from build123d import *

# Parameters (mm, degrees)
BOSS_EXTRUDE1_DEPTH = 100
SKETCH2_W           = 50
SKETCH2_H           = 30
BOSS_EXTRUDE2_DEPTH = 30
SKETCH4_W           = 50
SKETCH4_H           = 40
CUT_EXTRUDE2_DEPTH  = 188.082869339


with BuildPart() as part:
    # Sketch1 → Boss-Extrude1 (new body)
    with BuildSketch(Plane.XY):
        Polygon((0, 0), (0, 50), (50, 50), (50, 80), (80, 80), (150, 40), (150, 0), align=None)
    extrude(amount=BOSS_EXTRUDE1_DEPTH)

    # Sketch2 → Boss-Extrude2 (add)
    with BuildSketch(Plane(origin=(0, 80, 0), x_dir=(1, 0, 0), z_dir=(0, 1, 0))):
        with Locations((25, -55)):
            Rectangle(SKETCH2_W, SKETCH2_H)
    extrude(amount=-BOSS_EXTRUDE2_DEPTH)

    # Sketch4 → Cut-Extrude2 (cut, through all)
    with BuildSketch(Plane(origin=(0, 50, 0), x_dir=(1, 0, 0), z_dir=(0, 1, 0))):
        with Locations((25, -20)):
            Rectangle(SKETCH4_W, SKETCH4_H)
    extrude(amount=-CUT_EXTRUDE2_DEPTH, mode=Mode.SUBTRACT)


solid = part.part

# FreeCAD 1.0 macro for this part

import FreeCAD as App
import Part
import Sketcher

doc = App.newDocument("Part")
body = doc.addObject("PartDesign::Body", "Body")

# Sketch on XY plane
sketch1 = doc.addObject("Sketcher::SketchObject", "Sketch")
body.addObject(sketch1)
sketch1.AttachmentSupport = (doc.XY_Plane, [""])
sketch1.MapMode = "FlatFace"
sketch1.addGeometry([
    Part.LineSegment(App.Vector(0, 50, 0), App.Vector(0, 0, 0)),  # 0
    Part.LineSegment(App.Vector(0, 0, 0), App.Vector(150, 0, 0)),  # 1
    Part.LineSegment(App.Vector(150, 0, 0), App.Vector(150, 40, 0)),  # 2
    Part.LineSegment(App.Vector(150, 40, 0), App.Vector(80, 80, 0)),  # 3
    Part.LineSegment(App.Vector(80, 80, 0), App.Vector(50, 80, 0)),  # 4
    Part.LineSegment(App.Vector(50, 80, 0), App.Vector(50, 50, 0)),  # 5
    Part.LineSegment(App.Vector(50, 50, 0), App.Vector(0, 50, 0)),  # 6
], False)
sketch1.addConstraint([
    Sketcher.Constraint("Coincident", 0, 2, 1, 1),
    Sketcher.Constraint("Coincident", 1, 2, 2, 1),
    Sketcher.Constraint("Coincident", 2, 2, 3, 1),
    Sketcher.Constraint("Coincident", 3, 2, 4, 1),
    Sketcher.Constraint("Coincident", 4, 2, 5, 1),
    Sketcher.Constraint("Coincident", 5, 2, 6, 1),
    Sketcher.Constraint("Coincident", 6, 2, 0, 1),
    Sketcher.Constraint("Vertical", 0),
    Sketcher.Constraint("Horizontal", 1),
    Sketcher.Constraint("Vertical", 2),
    Sketcher.Constraint("Horizontal", 4),
    Sketcher.Constraint("Vertical", 5),
    Sketcher.Constraint("Horizontal", 6),
    Sketcher.Constraint("Coincident", 0, 2, -1, 1),
    Sketcher.Constraint("Equal", 6, 0),
    Sketcher.Constraint("Equal", 4, 5),
    Sketcher.Constraint("DistanceX", 1, 1, 1, 2, 150.0),
    Sketcher.Constraint("DistanceX", 4, 2, 4, 1, 30.0),
    Sketcher.Constraint("DistanceX", 6, 2, 6, 1, 50.0),
    Sketcher.Constraint("DistanceY", 2, 1, 2, 2, 40.0),
])
pad1 = doc.addObject("PartDesign::Pad", "Pad")
body.addObject(pad1)
pad1.Profile = sketch1
pad1.Length = 100

# Sketch on XZ plane
sketch2 = doc.addObject("Sketcher::SketchObject", "Sketch001")
body.addObject(sketch2)
sketch2.AttachmentSupport = (doc.XZ_Plane, [""])
sketch2.MapMode = "FlatFace"
sketch2.AttachmentOffset = App.Placement(App.Vector(0, 0, -80), App.Rotation())
sketch2.addGeometry([
    Part.LineSegment(App.Vector(0, 40, 0), App.Vector(0, 70, 0)),
    Part.LineSegment(App.Vector(0, 70, 0), App.Vector(50, 70, 0)),
    Part.LineSegment(App.Vector(50, 70, 0), App.Vector(50, 40, 0)),
    Part.LineSegment(App.Vector(50, 40, 0), App.Vector(0, 40, 0)),
], False)
sketch2.addConstraint([
    Sketcher.Constraint("Coincident", 0, 2, 1, 1),
    Sketcher.Constraint("Coincident", 1, 2, 2, 1),
    Sketcher.Constraint("Coincident", 2, 2, 3, 1),
    Sketcher.Constraint("Coincident", 3, 2, 0, 1),
    Sketcher.Constraint("Vertical", 0),
    Sketcher.Constraint("Horizontal", 1),
    Sketcher.Constraint("Vertical", 2),
    Sketcher.Constraint("Horizontal", 3),
    Sketcher.Constraint("PointOnObject", 0, 2, -2),
    Sketcher.Constraint("DistanceX", 1, 1, 1, 2, 50.0),
    Sketcher.Constraint("DistanceY", 0, 1, 0, 2, 30.0),
    Sketcher.Constraint("DistanceY", -1, 1, 0, 2, 70.0),
])
pad2 = doc.addObject("PartDesign::Pad", "Pad001")
body.addObject(pad2)
pad2.Profile = sketch2
pad2.Length = 30

# Sketch on XZ plane
sketch3 = doc.addObject("Sketcher::SketchObject", "Sketch002")
body.addObject(sketch3)
sketch3.AttachmentSupport = (doc.XZ_Plane, [""])
sketch3.MapMode = "FlatFace"
sketch3.AttachmentOffset = App.Placement(App.Vector(0, 0, -50), App.Rotation())
sketch3.addGeometry([
    Part.LineSegment(App.Vector(0, 0, 0), App.Vector(0, 40, 0)),
    Part.LineSegment(App.Vector(0, 40, 0), App.Vector(50, 40, 0)),
    Part.LineSegment(App.Vector(50, 40, 0), App.Vector(50, 0, 0)),
    Part.LineSegment(App.Vector(50, 0, 0), App.Vector(0, 0, 0)),
], False)
sketch3.addConstraint([
    Sketcher.Constraint("Coincident", 0, 2, 1, 1),
    Sketcher.Constraint("Coincident", 1, 2, 2, 1),
    Sketcher.Constraint("Coincident", 2, 2, 3, 1),
    Sketcher.Constraint("Coincident", 3, 2, 0, 1),
    Sketcher.Constraint("Vertical", 0),
    Sketcher.Constraint("Horizontal", 1),
    Sketcher.Constraint("Vertical", 2),
    Sketcher.Constraint("Horizontal", 3),
    Sketcher.Constraint("Coincident", 3, 2, -1, 1),
    Sketcher.Constraint("DistanceX", 1, 1, 1, 2, 50.0),
    Sketcher.Constraint("DistanceY", 0, 1, 0, 2, 40.0),
])
pocket1 = doc.addObject("PartDesign::Pocket", "Pocket")
body.addObject(pocket1)
pocket1.Profile = sketch3
pocket1.Type = "ThroughAll"
pocket1.Reversed = True

doc.recompute()
